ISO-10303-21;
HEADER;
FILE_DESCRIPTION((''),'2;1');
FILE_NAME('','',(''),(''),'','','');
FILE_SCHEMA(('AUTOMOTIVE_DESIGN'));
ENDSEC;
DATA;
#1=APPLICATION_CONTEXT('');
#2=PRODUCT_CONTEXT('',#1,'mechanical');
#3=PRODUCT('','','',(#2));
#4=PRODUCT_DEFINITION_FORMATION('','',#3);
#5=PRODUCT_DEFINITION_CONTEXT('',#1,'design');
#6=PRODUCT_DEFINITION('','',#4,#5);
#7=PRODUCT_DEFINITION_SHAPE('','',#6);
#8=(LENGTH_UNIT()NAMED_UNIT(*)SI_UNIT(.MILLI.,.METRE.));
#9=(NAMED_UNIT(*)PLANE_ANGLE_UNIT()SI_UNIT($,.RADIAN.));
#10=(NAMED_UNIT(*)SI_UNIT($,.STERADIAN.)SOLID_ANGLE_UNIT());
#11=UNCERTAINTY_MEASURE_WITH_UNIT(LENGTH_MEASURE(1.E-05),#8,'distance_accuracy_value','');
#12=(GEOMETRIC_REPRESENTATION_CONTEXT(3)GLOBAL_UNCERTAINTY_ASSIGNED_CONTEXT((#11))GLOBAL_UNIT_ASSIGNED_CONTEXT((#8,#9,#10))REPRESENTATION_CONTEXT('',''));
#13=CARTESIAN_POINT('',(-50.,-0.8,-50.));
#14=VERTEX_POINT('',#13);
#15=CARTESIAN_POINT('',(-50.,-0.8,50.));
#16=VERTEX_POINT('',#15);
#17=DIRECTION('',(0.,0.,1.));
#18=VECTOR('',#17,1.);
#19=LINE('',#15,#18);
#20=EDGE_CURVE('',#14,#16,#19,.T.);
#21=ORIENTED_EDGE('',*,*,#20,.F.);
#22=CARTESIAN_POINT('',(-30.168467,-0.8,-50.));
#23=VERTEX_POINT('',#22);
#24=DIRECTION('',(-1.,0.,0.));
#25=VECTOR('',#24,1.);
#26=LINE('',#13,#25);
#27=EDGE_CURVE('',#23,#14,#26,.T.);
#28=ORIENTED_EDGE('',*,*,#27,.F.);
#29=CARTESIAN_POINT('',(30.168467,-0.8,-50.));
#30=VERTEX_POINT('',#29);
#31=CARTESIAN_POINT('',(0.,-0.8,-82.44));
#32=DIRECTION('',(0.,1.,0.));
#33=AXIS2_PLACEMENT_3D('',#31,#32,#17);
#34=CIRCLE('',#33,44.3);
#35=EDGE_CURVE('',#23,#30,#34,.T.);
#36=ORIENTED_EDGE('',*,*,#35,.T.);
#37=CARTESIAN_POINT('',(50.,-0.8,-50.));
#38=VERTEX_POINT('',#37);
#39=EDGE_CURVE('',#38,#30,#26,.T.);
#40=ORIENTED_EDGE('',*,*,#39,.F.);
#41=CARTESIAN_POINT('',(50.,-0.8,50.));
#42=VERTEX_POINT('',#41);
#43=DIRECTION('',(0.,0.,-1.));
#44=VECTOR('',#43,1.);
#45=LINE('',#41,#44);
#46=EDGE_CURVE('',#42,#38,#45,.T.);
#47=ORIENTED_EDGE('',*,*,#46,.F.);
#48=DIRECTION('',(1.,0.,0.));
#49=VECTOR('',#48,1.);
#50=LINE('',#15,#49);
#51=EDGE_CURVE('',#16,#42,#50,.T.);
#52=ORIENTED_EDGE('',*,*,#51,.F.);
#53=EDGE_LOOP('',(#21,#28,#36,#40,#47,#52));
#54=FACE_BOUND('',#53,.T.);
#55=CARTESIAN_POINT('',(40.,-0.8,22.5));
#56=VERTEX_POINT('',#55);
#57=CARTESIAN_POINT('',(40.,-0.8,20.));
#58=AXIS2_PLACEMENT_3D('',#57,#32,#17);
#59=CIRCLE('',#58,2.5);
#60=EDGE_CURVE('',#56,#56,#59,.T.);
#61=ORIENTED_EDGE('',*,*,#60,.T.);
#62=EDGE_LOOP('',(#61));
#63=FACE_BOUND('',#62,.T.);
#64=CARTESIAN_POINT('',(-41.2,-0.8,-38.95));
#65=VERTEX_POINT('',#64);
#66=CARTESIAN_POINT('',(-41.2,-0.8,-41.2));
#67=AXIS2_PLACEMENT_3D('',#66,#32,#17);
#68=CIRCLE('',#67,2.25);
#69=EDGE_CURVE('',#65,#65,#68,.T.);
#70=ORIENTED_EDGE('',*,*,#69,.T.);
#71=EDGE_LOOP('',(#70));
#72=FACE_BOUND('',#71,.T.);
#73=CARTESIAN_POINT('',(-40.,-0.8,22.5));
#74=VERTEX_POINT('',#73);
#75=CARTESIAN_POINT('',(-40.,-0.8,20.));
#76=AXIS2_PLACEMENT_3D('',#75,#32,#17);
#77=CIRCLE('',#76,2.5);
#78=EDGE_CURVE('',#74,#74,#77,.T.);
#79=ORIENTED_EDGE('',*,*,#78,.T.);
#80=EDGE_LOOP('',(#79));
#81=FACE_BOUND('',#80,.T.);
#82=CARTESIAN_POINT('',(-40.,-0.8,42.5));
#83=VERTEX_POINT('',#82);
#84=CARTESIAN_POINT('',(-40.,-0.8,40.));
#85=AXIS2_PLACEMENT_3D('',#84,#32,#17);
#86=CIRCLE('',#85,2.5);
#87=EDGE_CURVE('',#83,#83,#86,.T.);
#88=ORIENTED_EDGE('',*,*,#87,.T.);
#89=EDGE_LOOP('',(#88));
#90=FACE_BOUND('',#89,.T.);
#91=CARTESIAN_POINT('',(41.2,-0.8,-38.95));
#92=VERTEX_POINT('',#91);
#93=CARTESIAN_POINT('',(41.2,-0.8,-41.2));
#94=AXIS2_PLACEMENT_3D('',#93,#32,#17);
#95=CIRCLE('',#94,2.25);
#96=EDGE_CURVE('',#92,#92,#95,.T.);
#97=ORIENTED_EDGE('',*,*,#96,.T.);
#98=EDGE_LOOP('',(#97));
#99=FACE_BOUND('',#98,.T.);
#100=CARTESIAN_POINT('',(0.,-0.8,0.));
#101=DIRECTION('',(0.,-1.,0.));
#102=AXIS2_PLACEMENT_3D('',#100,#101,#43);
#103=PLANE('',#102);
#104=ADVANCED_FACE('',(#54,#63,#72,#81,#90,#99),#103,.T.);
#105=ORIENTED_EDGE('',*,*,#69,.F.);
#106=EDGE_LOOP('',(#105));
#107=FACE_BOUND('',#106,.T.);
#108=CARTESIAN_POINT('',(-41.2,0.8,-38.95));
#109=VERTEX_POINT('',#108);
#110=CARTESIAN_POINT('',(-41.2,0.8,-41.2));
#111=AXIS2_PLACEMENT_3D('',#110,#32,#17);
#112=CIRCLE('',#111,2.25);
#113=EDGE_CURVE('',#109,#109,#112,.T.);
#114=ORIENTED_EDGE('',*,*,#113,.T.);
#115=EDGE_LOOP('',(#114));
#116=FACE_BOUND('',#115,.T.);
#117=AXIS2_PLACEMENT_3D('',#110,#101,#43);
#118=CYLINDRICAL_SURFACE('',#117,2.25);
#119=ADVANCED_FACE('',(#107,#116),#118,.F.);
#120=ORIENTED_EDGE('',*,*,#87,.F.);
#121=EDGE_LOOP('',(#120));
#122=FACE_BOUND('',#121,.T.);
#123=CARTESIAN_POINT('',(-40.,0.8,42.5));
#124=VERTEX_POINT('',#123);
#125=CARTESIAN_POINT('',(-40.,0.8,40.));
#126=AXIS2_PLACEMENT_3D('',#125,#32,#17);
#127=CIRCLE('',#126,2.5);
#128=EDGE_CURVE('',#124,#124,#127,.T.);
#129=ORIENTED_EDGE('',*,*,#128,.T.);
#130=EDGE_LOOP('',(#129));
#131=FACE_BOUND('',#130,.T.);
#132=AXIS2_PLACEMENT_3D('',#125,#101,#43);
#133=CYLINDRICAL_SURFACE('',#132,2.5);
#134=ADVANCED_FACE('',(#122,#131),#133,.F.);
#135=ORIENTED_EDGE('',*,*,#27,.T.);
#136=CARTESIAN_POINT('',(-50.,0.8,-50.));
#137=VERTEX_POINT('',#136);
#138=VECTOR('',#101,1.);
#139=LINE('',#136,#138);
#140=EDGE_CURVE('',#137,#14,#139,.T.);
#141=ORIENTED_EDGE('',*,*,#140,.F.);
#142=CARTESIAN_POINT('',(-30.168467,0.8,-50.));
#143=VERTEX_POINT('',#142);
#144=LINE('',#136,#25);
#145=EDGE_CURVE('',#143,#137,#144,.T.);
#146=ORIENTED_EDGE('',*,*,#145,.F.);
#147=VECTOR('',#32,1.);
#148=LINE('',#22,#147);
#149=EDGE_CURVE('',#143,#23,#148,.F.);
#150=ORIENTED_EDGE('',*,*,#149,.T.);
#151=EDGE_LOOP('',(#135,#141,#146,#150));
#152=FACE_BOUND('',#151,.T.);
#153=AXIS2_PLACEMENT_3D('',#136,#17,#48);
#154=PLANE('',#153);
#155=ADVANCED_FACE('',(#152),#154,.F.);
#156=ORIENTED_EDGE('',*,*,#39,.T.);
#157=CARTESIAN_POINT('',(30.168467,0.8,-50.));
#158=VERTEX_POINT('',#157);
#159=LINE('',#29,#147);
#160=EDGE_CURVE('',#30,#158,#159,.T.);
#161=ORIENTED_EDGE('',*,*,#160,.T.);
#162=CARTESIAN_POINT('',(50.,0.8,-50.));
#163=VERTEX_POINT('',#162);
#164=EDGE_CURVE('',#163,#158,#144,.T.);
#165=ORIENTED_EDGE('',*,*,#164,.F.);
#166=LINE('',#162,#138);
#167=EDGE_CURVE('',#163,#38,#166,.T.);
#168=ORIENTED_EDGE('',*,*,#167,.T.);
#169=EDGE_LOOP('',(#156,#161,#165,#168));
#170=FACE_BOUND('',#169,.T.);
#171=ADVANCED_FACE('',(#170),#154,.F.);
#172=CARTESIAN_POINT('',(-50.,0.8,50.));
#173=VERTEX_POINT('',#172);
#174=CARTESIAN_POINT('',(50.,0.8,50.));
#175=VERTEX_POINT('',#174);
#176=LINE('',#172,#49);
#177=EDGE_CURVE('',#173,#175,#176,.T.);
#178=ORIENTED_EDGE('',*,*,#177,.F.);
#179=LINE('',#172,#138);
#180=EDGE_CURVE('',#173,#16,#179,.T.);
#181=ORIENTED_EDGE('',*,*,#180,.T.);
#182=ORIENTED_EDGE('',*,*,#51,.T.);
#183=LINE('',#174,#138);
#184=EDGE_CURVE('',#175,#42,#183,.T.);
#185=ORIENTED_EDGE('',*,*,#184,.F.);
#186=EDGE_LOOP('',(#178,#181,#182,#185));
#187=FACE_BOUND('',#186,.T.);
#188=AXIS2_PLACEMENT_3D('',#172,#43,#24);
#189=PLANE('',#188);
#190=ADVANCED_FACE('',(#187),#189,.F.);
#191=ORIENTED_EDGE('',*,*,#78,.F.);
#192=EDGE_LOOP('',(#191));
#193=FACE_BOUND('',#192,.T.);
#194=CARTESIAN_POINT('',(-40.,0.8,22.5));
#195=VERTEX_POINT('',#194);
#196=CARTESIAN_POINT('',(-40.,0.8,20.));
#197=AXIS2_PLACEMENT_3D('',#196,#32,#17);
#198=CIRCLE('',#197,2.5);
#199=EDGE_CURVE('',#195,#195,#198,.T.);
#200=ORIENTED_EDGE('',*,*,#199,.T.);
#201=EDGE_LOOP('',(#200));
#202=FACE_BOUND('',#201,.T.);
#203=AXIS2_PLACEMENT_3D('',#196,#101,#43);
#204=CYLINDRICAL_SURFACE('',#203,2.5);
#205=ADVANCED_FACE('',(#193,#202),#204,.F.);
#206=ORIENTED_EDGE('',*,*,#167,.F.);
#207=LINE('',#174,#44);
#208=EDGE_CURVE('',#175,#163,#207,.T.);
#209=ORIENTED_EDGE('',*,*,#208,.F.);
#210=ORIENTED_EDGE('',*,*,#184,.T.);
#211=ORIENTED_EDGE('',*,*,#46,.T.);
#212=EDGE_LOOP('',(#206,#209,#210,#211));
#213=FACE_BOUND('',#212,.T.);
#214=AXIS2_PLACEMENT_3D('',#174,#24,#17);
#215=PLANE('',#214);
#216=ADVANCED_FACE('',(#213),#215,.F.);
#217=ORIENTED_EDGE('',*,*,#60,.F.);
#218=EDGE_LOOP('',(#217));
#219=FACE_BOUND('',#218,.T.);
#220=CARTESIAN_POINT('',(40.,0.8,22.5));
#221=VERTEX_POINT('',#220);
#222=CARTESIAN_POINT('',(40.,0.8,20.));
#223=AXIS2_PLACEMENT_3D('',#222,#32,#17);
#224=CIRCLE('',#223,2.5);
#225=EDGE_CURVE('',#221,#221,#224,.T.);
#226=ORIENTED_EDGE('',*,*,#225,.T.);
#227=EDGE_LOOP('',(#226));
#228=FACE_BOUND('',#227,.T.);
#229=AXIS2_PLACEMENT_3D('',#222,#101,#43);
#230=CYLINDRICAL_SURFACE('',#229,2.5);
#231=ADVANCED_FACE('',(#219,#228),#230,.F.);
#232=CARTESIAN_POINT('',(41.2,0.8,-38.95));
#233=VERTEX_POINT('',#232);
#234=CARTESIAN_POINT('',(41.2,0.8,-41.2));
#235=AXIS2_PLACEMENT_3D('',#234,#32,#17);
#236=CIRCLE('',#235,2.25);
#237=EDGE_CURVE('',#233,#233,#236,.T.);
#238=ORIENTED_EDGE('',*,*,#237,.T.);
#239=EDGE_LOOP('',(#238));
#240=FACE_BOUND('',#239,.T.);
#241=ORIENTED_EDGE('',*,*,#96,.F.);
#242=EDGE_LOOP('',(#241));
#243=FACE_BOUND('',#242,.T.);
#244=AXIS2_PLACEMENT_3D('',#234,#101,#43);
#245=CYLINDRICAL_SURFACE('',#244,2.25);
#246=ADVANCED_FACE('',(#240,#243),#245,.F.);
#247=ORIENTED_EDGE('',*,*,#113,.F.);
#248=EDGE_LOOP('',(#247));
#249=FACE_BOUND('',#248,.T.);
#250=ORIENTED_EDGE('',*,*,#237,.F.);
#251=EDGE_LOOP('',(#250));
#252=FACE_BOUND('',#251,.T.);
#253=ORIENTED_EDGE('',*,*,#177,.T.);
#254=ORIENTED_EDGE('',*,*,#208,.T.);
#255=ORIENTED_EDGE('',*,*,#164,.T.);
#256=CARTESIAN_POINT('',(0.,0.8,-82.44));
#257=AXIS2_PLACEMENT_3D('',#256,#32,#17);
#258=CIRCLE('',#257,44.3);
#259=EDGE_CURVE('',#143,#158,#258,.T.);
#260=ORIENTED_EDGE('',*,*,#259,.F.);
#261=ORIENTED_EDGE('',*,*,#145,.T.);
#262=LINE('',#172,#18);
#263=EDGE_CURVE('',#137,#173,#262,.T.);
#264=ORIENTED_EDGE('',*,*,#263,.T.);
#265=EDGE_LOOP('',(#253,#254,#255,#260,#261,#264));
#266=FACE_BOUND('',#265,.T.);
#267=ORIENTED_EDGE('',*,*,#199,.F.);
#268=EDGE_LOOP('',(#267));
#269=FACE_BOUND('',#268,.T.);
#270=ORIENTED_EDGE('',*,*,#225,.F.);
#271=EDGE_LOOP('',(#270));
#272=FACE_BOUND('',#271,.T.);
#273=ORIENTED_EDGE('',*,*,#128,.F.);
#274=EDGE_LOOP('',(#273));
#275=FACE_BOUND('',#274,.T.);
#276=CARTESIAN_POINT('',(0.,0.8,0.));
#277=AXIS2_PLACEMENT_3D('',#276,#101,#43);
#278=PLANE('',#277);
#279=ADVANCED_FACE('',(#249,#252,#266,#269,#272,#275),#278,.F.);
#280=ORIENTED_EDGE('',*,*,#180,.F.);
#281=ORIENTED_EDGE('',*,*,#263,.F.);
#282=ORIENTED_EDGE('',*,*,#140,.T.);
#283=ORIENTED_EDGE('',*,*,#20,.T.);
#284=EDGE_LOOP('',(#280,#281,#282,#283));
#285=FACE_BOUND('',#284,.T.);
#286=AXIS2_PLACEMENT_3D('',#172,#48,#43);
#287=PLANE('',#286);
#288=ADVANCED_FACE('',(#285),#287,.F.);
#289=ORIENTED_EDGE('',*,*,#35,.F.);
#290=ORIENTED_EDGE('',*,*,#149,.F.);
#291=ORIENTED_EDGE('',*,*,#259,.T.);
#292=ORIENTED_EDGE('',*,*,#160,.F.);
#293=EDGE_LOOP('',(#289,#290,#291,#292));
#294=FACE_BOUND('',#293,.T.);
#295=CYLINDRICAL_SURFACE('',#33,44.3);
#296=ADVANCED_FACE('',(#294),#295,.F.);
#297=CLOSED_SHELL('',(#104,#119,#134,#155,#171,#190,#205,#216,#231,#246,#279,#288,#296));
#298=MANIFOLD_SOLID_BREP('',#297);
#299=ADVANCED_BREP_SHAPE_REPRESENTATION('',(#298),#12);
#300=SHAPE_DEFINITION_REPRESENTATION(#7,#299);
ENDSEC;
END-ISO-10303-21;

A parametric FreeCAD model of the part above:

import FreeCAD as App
import Part
import Sketcher
from FreeCAD import Vector
Q = App.Units.Quantity

doc = App.newDocument("Part")
body = doc.addObject("PartDesign::Body", "Body")

# Sketch on XZ plane
sketch1 = doc.addObject("Sketcher::SketchObject", "Sketch")
body.addObject(sketch1)
sketch1.AttachmentSupport = (doc.XZ_Plane, [""])
sketch1.MapMode = "FlatFace"
sketch1.addGeometry([
    Part.LineSegment(Vector(-50, -50, 0), Vector(-50, 50, 0)),  # 0
    Part.LineSegment(Vector(-50, 50, 0), Vector(50, 50, 0)),  # 1
    Part.LineSegment(Vector(50, 50, 0), Vector(50, -50, 0)),  # 2
    Part.LineSegment(Vector(50, -50, 0), Vector(-50, -50, 0)),  # 3
    Part.Circle(Vector(-40, 40, 0), Vector(0, 0, 1), 2.5),  # 4
    Part.Circle(Vector(-40, 20, 0), Vector(0, 0, 1), 2.5),  # 5
    Part.Circle(Vector(40, 20, 0), Vector(0, 0, 1), 2.5),  # 6
    Part.Circle(Vector(-41.2, -41.2, 0), Vector(0, 0, 1), 2.25),  # 7
    Part.Circle(Vector(41.2, -41.2, 0), Vector(0, 0, 1), 2.25),  # 8
], False)
sketch1.addConstraint([
    Sketcher.Constraint("Coincident", 0, 2, 1, 1),
    Sketcher.Constraint("Coincident", 1, 2, 2, 1),
    Sketcher.Constraint("Coincident", 2, 2, 3, 1),
    Sketcher.Constraint("Coincident", 3, 2, 0, 1),
    Sketcher.Constraint("Vertical", 0),
    Sketcher.Constraint("Horizontal", 1),
    Sketcher.Constraint("Vertical", 2),
    Sketcher.Constraint("Horizontal", 3),
    Sketcher.Constraint("Equal", 4, 5),
    Sketcher.Constraint("Equal", 5, 6),
    Sketcher.Constraint("Equal", 7, 8),
    Sketcher.Constraint("Symmetric", 0, 2, 2, 2, -1, 1),
    Sketcher.Constraint("Symmetric", 5, 3, 6, 3, -2),
    Sketcher.Constraint("Symmetric", 7, 3, 8, 3, -2),
    Sketcher.Constraint("Vertical", 4, 3, 5, 3),
    Sketcher.Constraint("Equal", 3, 0),
    Sketcher.Constraint("Diameter", 4, Q("5 mm")),
    Sketcher.Constraint("Diameter", 7, Q("4.5 mm")),
    Sketcher.Constraint("DistanceX", 1, 1, 1, 2, Q("100 mm")),
    Sketcher.Constraint("DistanceX", 4, 3, -1, 1, Q("40 mm")),
    Sketcher.Constraint("DistanceY", -1, 1, 4, 3, Q("40 mm")),
    Sketcher.Constraint("DistanceY", -1, 1, 5, 3, Q("20 mm")),
    Sketcher.Constraint("DistanceX", 7, 3, -1, 1, Q("41.2 mm")),
    Sketcher.Constraint("DistanceY", 7, 3, -1, 1, Q("41.2 mm")),
])
pad1 = doc.addObject("PartDesign::Pad", "Pad")
body.addObject(pad1)
pad1.Profile = sketch1
pad1.Length = 1.6
pad1.Midplane = True

# Sketch on XZ plane
sketch2 = doc.addObject("Sketcher::SketchObject", "Sketch001")
body.addObject(sketch2)
sketch2.AttachmentSupport = (doc.XZ_Plane, [""])
sketch2.MapMode = "FlatFace"
sketch2.AttachmentOffset = App.Placement(Vector(0, 0, -0.8), App.Rotation())
sketch2.addGeometry(Part.Circle(Vector(0, -82.44, 0), Vector(0, 0, 1), 44.3), False)
sketch2.addConstraint([
    Sketcher.Constraint("PointOnObject", 0, 3, -2),
    Sketcher.Constraint("Diameter", 0, Q("88.6 mm")),
    Sketcher.Constraint("DistanceY", 0, 3, -1, 1, Q("82.44 mm")),
])
pocket1 = doc.addObject("PartDesign::Pocket", "Pocket")
body.addObject(pocket1)
pocket1.Profile = sketch2
pocket1.Type = "ThroughAll"
pocket1.Reversed = True

doc.recompute()
